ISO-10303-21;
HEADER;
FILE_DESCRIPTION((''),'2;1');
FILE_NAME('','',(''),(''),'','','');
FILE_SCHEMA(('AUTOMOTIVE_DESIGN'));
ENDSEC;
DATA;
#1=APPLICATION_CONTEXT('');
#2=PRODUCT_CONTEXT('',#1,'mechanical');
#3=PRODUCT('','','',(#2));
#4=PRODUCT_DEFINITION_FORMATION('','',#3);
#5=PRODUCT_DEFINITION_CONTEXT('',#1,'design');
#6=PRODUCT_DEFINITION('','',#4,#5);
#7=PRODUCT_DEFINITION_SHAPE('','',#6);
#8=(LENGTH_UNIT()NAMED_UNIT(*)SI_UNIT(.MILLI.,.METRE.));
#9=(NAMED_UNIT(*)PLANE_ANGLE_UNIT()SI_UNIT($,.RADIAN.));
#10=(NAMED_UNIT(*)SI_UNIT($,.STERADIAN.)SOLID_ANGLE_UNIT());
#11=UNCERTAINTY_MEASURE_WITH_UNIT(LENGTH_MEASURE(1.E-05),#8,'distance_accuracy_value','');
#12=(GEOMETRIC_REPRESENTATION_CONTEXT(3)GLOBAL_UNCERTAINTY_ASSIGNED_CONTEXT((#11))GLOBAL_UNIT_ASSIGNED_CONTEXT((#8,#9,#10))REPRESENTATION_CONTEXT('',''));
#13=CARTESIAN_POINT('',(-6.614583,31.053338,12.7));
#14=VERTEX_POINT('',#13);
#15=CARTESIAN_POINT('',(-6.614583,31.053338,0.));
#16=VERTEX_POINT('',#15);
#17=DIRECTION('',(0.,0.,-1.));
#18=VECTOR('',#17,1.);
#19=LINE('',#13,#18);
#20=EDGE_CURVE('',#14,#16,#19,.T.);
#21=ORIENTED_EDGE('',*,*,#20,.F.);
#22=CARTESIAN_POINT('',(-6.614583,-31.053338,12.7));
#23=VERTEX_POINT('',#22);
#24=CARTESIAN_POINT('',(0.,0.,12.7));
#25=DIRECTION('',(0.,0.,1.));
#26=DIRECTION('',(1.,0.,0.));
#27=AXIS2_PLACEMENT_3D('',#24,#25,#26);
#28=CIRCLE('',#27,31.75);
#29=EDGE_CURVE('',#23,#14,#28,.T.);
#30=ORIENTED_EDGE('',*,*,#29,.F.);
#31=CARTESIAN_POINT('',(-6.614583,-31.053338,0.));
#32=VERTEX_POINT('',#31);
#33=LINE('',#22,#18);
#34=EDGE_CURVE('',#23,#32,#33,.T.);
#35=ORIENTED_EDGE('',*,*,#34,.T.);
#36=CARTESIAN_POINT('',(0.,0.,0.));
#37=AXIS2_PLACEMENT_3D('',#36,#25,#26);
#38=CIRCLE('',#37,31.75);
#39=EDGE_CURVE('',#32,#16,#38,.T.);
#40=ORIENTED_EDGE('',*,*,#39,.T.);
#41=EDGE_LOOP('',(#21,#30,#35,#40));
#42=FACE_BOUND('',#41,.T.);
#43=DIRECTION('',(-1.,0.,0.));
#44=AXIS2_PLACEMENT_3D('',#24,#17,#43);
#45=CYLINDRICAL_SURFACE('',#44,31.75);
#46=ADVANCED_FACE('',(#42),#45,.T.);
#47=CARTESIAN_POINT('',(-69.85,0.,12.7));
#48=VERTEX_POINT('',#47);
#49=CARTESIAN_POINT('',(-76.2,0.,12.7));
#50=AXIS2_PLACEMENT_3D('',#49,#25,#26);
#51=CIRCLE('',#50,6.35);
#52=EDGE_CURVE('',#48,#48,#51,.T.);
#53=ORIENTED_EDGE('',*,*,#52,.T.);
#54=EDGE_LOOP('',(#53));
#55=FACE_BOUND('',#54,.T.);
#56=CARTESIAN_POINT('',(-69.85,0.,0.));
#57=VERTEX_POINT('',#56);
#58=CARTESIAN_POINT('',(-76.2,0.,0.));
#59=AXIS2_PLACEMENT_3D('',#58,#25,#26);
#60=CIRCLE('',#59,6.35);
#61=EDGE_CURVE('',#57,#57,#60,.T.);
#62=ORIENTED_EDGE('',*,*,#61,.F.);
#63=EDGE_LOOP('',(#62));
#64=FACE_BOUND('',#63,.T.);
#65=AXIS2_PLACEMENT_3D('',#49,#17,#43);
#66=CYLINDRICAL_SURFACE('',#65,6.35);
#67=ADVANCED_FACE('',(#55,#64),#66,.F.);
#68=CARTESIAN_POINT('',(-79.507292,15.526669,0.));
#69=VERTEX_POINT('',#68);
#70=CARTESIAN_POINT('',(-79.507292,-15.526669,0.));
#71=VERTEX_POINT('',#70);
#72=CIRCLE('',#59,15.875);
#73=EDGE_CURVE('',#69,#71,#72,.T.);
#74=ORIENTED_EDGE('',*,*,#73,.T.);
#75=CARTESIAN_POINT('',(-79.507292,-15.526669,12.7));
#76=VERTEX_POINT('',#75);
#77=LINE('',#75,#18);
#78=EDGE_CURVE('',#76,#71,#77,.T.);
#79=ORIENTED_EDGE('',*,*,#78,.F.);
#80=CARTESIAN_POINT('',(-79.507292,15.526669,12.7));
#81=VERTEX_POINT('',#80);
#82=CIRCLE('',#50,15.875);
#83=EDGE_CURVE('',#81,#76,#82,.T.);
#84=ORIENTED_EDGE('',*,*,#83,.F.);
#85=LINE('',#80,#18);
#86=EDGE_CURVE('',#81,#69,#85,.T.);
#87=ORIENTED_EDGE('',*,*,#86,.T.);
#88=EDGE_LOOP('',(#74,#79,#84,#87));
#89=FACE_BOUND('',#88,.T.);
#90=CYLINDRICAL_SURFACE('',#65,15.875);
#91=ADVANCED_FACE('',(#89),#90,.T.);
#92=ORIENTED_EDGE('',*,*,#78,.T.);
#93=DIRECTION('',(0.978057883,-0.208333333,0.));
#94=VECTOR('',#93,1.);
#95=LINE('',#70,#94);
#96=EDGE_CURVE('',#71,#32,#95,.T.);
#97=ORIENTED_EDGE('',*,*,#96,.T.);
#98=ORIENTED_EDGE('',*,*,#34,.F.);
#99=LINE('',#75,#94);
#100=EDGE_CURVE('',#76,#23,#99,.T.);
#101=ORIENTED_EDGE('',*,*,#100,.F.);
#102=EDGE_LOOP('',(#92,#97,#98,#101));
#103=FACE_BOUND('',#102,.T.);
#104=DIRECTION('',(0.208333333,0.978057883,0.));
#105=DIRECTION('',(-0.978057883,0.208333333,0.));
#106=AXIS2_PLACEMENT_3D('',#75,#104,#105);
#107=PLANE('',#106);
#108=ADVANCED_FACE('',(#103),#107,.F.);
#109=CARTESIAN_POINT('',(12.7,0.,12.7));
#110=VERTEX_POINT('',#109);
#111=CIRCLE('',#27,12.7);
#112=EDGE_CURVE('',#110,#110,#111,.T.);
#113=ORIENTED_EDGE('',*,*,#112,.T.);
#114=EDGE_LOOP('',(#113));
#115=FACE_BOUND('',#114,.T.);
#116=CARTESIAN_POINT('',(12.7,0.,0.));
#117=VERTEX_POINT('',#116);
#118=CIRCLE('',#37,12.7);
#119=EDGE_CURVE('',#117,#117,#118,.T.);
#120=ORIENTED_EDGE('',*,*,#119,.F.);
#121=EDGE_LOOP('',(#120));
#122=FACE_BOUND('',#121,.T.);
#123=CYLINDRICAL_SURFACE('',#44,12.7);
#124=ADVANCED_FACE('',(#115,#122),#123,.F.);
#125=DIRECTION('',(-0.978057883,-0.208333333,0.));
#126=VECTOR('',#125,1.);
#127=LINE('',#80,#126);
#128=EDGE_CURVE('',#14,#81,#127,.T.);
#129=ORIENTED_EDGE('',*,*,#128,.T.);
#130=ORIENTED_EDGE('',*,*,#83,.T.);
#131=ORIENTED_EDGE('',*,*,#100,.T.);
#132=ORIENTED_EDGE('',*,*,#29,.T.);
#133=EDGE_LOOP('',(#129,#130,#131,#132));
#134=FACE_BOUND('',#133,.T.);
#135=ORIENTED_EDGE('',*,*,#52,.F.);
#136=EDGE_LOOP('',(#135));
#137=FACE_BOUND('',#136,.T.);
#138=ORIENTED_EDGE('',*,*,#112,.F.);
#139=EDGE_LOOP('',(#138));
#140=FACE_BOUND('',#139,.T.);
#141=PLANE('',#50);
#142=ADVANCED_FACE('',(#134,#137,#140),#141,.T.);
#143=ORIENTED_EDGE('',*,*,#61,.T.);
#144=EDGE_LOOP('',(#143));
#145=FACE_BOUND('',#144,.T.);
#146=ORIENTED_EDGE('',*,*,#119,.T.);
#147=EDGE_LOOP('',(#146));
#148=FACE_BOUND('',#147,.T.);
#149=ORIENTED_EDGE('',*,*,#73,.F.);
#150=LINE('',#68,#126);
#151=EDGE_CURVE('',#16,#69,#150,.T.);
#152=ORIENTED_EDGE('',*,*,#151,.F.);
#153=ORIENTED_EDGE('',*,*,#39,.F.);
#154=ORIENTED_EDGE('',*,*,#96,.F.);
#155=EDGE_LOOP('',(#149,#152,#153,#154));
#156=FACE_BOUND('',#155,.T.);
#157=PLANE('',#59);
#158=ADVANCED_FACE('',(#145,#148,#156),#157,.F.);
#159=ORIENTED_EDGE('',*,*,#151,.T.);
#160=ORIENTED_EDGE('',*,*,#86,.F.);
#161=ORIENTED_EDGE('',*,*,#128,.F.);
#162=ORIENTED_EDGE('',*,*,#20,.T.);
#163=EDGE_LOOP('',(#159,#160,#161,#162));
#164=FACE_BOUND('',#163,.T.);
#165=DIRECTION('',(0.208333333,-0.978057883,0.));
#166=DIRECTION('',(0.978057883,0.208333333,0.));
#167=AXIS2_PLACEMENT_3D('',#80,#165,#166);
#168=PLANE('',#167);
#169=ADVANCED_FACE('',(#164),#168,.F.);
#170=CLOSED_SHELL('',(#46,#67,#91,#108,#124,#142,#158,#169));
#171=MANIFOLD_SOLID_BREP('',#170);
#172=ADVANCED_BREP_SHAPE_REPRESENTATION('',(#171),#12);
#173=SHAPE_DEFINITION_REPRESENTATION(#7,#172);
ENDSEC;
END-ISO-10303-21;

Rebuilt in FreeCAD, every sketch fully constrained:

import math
import FreeCAD as App
import Part
import Sketcher
from FreeCAD import Vector
Q = App.Units.Quantity

doc = App.newDocument("Part")
body = doc.addObject("PartDesign::Body", "Body")

# Sketch on XY plane
sketch1 = doc.addObject("Sketcher::SketchObject", "Sketch")
body.addObject(sketch1)
sketch1.AttachmentSupport = (doc.XY_Plane, [""])
sketch1.MapMode = "FlatFace"
sketch1.addGeometry([
    Part.LineSegment(Vector(-80, -16, 0), Vector(-7, -31, 0)),  # 0
    Part.ArcOfCircle(Part.Circle(Vector(0, 0, 0), Vector(0, 0, 1), 32), math.radians(-102), math.radians(102)),  # 1
    Part.LineSegment(Vector(-7, 31, 0), Vector(-80, 16, 0)),  # 2
    Part.ArcOfCircle(Part.Circle(Vector(-76, 0, 0), Vector(0, 0, 1), 16), math.radians(102), math.radians(258)),  # 3
    Part.Circle(Vector(-76, 0, 0), Vector(0, 0, 1), 6),  # 4
    Part.Circle(Vector(0, 0, 0), Vector(0, 0, 1), 13),  # 5
], False)
sketch1.addConstraint([
    Sketcher.Constraint("Tangent", 0, 2, 1, 1),
    Sketcher.Constraint("Tangent", 1, 2, 2, 1),
    Sketcher.Constraint("Tangent", 2, 2, 3, 1),
    Sketcher.Constraint("Tangent", 3, 2, 0, 1),
    Sketcher.Constraint("Coincident", 1, 3, -1, 1),
    Sketcher.Constraint("Coincident", 5, 3, -1, 1),
    Sketcher.Constraint("Coincident", 4, 3, 3, 3),
    Sketcher.Constraint("PointOnObject", 3, 3, -1),
    Sketcher.Constraint("Diameter", 5, Q("1 in")),
    Sketcher.Constraint("Diameter", 4, Q("0.5 in")),
    Sketcher.Constraint("Radius", 1, Q("1.25 in")),
    Sketcher.Constraint("DistanceX", 3, 3, -1, 1, Q("3 in")),
    Sketcher.Constraint("Radius", 3, Q("0.625 in")),
])
pad1 = doc.addObject("PartDesign::Pad", "Pad")
body.addObject(pad1)
pad1.Profile = sketch1
pad1.Length = Q("0.5 in")

doc.recompute()
